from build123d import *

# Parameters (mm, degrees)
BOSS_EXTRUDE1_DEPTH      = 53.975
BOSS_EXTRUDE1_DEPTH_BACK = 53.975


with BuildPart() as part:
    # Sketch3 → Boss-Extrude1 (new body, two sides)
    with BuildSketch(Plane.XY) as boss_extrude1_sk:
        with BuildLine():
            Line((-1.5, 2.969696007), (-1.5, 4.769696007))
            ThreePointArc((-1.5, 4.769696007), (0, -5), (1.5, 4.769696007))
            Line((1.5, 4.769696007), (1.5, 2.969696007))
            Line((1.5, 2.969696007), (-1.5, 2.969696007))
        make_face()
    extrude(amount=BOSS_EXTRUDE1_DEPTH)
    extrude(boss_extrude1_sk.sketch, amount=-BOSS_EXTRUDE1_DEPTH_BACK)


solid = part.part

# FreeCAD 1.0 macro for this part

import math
import FreeCAD as App
import Part
import Sketcher
from FreeCAD import Vector
Q = App.Units.Quantity

doc = App.newDocument("Part")
body = doc.addObject("PartDesign::Body", "Body")

# Sketch on XY plane
sketch1 = body.newObject("Sketcher::SketchObject", "Sketch")
sketch1.AttachmentSupport = (doc.getObject("XY_Plane"), [""])
sketch1.MapMode = "FlatFace"
sketch1.addGeometry(Part.LineSegment(Vector(-1.5, 3, 0), Vector(-1.5, 4.8, 0)), False)
sketch1.addGeometry(Part.ArcOfCircle(Part.Circle(Vector(0, 0, 0), Vector(0, 0, 1), 5), math.radians(107), math.radians(433)), False)
sketch1.addGeometry(Part.LineSegment(Vector(1.5, 4.8, 0), Vector(1.5, 3, 0)), False)
sketch1.addGeometry(Part.LineSegment(Vector(1.5, 3, 0), Vector(-1.5, 3, 0)), False)
sketch1.addConstraint(Sketcher.Constraint("Coincident", 0, 2, 1, 1))
sketch1.addConstraint(Sketcher.Constraint("Coincident", 1, 2, 2, 1))
sketch1.addConstraint(Sketcher.Constraint("Coincident", 2, 2, 3, 1))
sketch1.addConstraint(Sketcher.Constraint("Coincident", 3, 2, 0, 1))
sketch1.addConstraint(Sketcher.Constraint("Vertical", 0))
sketch1.addConstraint(Sketcher.Constraint("Vertical", 2))
sketch1.addConstraint(Sketcher.Constraint("Horizontal", 3))
sketch1.addConstraint(Sketcher.Constraint("Coincident", 1, 3, -1, 1))
sketch1.addConstraint(Sketcher.Constraint("Horizontal", 0, 2, 1, 2))
sketch1.addConstraint(Sketcher.Constraint("Radius", 1, Q("5 mm")))
sketch1.addConstraint(Sketcher.Constraint("DistanceX", 3, 2, 3, 1, Q("3 mm")))
sketch1.addConstraint(Sketcher.Constraint("DistanceY", 0, 1, 0, 2, Q("1.8 mm")))
pad1 = body.newObject("PartDesign::Pad", "Pad")
pad1.Profile = sketch1
pad1.Type = "TwoLengths"
pad1.Length = 53.975
pad1.Length2 = 53.975

doc.recompute()
